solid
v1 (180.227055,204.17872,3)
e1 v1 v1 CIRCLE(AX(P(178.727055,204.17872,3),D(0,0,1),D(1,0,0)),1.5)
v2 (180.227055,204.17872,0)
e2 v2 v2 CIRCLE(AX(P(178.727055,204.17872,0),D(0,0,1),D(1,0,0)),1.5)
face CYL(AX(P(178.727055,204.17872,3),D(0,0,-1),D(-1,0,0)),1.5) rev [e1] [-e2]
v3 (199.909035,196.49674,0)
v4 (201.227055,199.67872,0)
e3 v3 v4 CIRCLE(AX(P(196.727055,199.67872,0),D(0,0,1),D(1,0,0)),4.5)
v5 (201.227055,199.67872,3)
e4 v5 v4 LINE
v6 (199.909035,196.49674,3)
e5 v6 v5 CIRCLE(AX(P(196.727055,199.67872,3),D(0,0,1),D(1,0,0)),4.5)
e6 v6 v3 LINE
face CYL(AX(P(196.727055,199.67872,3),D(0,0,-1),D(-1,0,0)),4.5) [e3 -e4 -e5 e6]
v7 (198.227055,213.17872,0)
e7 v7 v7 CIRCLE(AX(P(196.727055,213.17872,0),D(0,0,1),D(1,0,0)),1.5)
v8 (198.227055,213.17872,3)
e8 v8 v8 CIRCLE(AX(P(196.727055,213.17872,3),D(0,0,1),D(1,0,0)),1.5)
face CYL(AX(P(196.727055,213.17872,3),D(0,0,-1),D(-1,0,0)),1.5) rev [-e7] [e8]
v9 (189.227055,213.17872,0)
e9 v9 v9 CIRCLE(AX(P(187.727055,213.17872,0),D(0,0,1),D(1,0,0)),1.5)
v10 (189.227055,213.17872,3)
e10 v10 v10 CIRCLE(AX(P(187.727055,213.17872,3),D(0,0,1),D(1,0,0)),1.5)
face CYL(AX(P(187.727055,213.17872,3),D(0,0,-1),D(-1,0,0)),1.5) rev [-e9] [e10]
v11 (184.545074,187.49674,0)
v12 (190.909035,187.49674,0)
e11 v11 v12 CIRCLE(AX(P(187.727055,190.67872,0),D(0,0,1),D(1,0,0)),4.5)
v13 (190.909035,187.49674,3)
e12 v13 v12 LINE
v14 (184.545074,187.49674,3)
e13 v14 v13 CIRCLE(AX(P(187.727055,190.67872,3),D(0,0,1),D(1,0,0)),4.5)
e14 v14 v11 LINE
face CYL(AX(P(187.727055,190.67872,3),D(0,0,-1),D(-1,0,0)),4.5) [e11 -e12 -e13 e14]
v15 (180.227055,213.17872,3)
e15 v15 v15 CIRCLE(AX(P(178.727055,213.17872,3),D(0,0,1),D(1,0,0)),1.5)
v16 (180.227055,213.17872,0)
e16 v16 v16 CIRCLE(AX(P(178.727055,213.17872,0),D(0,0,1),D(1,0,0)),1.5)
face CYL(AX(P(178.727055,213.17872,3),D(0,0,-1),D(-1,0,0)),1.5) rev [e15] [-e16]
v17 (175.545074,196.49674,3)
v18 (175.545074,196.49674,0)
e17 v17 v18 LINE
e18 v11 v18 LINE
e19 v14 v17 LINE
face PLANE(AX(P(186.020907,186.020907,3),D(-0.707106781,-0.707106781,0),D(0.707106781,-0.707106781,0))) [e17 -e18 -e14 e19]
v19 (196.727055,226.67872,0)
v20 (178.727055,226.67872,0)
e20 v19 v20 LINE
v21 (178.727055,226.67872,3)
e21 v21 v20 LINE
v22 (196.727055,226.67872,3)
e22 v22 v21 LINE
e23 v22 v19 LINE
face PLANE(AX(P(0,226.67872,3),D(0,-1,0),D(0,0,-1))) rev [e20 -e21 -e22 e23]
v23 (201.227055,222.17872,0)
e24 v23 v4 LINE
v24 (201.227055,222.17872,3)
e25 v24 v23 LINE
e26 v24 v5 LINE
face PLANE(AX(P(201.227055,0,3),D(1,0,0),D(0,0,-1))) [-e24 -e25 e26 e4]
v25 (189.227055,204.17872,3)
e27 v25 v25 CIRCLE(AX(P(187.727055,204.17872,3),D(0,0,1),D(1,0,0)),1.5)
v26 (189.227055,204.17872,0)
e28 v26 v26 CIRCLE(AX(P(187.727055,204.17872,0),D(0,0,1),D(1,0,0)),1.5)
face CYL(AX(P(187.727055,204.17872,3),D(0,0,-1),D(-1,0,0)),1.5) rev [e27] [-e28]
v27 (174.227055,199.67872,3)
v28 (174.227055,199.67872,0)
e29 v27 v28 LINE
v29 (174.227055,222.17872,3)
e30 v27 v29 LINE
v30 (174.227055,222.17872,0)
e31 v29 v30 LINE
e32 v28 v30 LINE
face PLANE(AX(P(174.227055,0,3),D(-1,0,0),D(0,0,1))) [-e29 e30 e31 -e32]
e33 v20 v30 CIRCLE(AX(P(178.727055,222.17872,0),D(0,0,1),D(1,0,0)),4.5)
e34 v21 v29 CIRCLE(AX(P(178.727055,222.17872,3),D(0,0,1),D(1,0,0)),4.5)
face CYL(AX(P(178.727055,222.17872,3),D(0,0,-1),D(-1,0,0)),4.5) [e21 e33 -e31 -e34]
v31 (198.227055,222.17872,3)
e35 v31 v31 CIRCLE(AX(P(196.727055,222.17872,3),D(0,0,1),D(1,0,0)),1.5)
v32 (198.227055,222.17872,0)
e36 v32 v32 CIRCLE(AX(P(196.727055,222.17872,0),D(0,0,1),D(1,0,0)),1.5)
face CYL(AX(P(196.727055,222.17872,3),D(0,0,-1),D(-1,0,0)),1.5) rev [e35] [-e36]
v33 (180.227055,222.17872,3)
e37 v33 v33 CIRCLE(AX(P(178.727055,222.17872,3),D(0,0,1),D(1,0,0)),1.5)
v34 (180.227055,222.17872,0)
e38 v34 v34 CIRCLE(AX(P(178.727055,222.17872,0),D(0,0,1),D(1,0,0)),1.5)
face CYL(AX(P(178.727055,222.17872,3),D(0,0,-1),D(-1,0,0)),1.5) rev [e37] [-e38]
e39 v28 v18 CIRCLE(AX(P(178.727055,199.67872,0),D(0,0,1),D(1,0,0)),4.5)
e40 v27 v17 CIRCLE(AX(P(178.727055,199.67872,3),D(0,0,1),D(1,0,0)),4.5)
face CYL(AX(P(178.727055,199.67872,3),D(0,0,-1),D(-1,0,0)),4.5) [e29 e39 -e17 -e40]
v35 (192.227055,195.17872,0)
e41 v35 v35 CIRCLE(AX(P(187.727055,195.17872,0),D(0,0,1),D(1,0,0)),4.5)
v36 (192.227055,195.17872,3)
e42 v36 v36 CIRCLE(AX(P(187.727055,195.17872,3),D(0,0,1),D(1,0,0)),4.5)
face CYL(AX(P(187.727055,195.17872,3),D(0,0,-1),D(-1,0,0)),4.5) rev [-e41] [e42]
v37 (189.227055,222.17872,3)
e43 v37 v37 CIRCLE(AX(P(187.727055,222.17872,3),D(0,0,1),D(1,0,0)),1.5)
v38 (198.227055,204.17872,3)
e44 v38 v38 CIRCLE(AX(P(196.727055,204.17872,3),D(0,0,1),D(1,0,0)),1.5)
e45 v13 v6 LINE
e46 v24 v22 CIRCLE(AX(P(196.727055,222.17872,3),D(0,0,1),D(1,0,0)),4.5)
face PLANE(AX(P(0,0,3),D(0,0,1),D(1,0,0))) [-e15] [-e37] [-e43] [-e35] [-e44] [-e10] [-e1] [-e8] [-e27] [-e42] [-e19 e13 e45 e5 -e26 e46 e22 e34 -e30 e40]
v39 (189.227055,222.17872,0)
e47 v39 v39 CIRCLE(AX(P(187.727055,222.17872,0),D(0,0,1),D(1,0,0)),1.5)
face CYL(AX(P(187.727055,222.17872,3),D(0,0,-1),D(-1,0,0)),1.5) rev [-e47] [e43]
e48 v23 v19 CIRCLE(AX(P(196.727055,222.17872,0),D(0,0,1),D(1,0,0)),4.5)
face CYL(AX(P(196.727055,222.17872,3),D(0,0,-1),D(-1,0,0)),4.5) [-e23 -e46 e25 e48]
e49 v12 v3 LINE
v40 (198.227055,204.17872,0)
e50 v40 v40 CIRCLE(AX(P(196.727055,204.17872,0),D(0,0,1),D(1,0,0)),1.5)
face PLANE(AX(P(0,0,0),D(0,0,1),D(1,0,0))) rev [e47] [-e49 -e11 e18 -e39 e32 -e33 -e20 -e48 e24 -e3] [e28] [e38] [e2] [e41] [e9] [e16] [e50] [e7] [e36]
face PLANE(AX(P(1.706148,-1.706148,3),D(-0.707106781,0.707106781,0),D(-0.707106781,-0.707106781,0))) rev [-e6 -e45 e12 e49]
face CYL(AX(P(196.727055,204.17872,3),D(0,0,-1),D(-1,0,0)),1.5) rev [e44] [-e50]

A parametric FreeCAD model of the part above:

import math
import FreeCAD as App
import Part
import Sketcher

V = App.Vector
Q = App.Units.Quantity

doc = App.newDocument("Part")
body = doc.addObject("PartDesign::Body", "Body")

# Sketch on XY plane
sketch1 = body.newObject("Sketcher::SketchObject", "Sketch")
sketch1.AttachmentSupport = (doc.getObject("XY_Plane"), [""])
sketch1.MapMode = "FlatFace"
sketch1.addGeometry(Part.LineSegment(V(196.7, 226.7, 0), V(178.7, 226.7, 0)), False)
sketch1.addGeometry(Part.ArcOfCircle(Part.Circle(V(178.7, 222.2, 0), V(0, 0, 1), 4.5), math.radians(90), math.radians(180)), False)
sketch1.addGeometry(Part.LineSegment(V(174.2, 222.2, 0), V(174.2, 199.7, 0)), False)
sketch1.addGeometry(Part.ArcOfCircle(Part.Circle(V(178.7, 199.7, 0), V(0, 0, 1), 4.5), math.radians(180), math.radians(225)), False)
sketch1.addGeometry(Part.LineSegment(V(175.5, 196.5, 0), V(184.5, 187.5, 0)), False)
sketch1.addGeometry(Part.ArcOfCircle(Part.Circle(V(187.7, 190.7, 0), V(0, 0, 1), 4.5), math.radians(-135), math.radians(-45)), False)
sketch1.addGeometry(Part.LineSegment(V(190.9, 187.5, 0), V(199.9, 196.5, 0)), False)
sketch1.addGeometry(Part.ArcOfCircle(Part.Circle(V(196.7, 199.7, 0), V(0, 0, 1), 4.5), math.radians(-45), math.radians(0)), False)
sketch1.addGeometry(Part.LineSegment(V(201.2, 199.7, 0), V(201.2, 222.2, 0)), False)
sketch1.addGeometry(Part.ArcOfCircle(Part.Circle(V(196.7, 222.2, 0), V(0, 0, 1), 4.5), math.radians(0), math.radians(90)), False)
sketch1.addGeometry(Part.Circle(V(178.7, 204.2, 0), V(0, 0, 1), 1.5), False)
sketch1.addGeometry(Part.Circle(V(187.7, 195.2, 0), V(0, 0, 1), 4.5), False)
sketch1.addGeometry(Part.Circle(V(187.7, 204.2, 0), V(0, 0, 1), 1.5), False)
sketch1.addGeometry(Part.Circle(V(196.7, 204.2, 0), V(0, 0, 1), 1.5), False)
sketch1.addGeometry(Part.Circle(V(178.7, 213.2, 0), V(0, 0, 1), 1.5), False)
sketch1.addGeometry(Part.Circle(V(178.7, 222.2, 0), V(0, 0, 1), 1.5), False)
sketch1.addGeometry(Part.Circle(V(187.7, 213.2, 0), V(0, 0, 1), 1.5), False)
sketch1.addGeometry(Part.Circle(V(196.7, 213.2, 0), V(0, 0, 1), 1.5), False)
sketch1.addGeometry(Part.Circle(V(187.7, 222.2, 0), V(0, 0, 1), 1.5), False)
sketch1.addGeometry(Part.Circle(V(196.7, 222.2, 0), V(0, 0, 1), 1.5), False)
sketch1.addConstraint(Sketcher.Constraint("Tangent", 0, 2, 1, 1))
sketch1.addConstraint(Sketcher.Constraint("Tangent", 1, 2, 2, 1))
sketch1.addConstraint(Sketcher.Constraint("Tangent", 2, 2, 3, 1))
sketch1.addConstraint(Sketcher.Constraint("Tangent", 3, 2, 4, 1))
sketch1.addConstraint(Sketcher.Constraint("Tangent", 4, 2, 5, 1))
sketch1.addConstraint(Sketcher.Constraint("Tangent", 5, 2, 6, 1))
sketch1.addConstraint(Sketcher.Constraint("Tangent", 6, 2, 7, 1))
sketch1.addConstraint(Sketcher.Constraint("Tangent", 7, 2, 8, 1))
sketch1.addConstraint(Sketcher.Constraint("Tangent", 8, 2, 9, 1))
sketch1.addConstraint(Sketcher.Constraint("Tangent", 9, 2, 0, 1))
sketch1.addConstraint(Sketcher.Constraint("Horizontal", 0))
sketch1.addConstraint(Sketcher.Constraint("Vertical", 2))
sketch1.addConstraint(Sketcher.Constraint("Vertical", 8))
sketch1.addConstraint(Sketcher.Constraint("Coincident", 15, 3, 1, 3))
sketch1.addConstraint(Sketcher.Constraint("Coincident", 19, 3, 9, 3))
sketch1.addConstraint(Sketcher.Constraint("Equal", 1, 3))
sketch1.addConstraint(Sketcher.Constraint("Equal", 3, 5))
sketch1.addConstraint(Sketcher.Constraint("Equal", 5, 7))
sketch1.addConstraint(Sketcher.Constraint("Equal", 7, 9))
sketch1.addConstraint(Sketcher.Constraint("Equal", 9, 11))
sketch1.addConstraint(Sketcher.Constraint("Equal", 10, 12))
sketch1.addConstraint(Sketcher.Constraint("Equal", 12, 13))
sketch1.addConstraint(Sketcher.Constraint("Equal", 13, 14))
sketch1.addConstraint(Sketcher.Constraint("Equal", 14, 15))
sketch1.addConstraint(Sketcher.Constraint("Equal", 15, 16))
sketch1.addConstraint(Sketcher.Constraint("Equal", 16, 17))
sketch1.addConstraint(Sketcher.Constraint("Equal", 17, 18))
sketch1.addConstraint(Sketcher.Constraint("Equal", 18, 19))
sketch1.addConstraint(Sketcher.Constraint("Perpendicular", 4, 6))
sketch1.addConstraint(Sketcher.Constraint("Horizontal", 3, 3, 7, 3))
sketch1.addConstraint(Sketcher.Constraint("Horizontal", 10, 3, 12, 3))
sketch1.addConstraint(Sketcher.Constraint("Horizontal", 12, 3, 13, 3))
sketch1.addConstraint(Sketcher.Constraint("Horizontal", 14, 3, 16, 3))
sketch1.addConstraint(Sketcher.Constraint("Horizontal", 16, 3, 17, 3))
sketch1.addConstraint(Sketcher.Constraint("Horizontal", 15, 3, 18, 3))
sketch1.addConstraint(Sketcher.Constraint("Horizontal", 4, 2, 5, 2))
sketch1.addConstraint(Sketcher.Constraint("Vertical", 3, 3, 10, 3))
sketch1.addConstraint(Sketcher.Constraint("Vertical", 5, 3, 11, 3))
sketch1.addConstraint(Sketcher.Constraint("Vertical", 11, 3, 12, 3))
sketch1.addConstraint(Sketcher.Constraint("Vertical", 9, 3, 13, 3))
sketch1.addConstraint(Sketcher.Constraint("Vertical", 10, 3, 14, 3))
sketch1.addConstraint(Sketcher.Constraint("Vertical", 12, 3, 16, 3))
sketch1.addConstraint(Sketcher.Constraint("Vertical", 13, 3, 17, 3))
sketch1.addConstraint(Sketcher.Constraint("Vertical", 16, 3, 18, 3))
sketch1.addConstraint(Sketcher.Constraint("Diameter", 10, Q("3 mm")))
sketch1.addConstraint(Sketcher.Constraint("Diameter", 11, Q("9 mm")))
sketch1.addConstraint(Sketcher.Constraint("DistanceX", 0, 2, 0, 1, Q("18 mm")))
sketch1.addConstraint(Sketcher.Constraint("DistanceY", 2, 2, 2, 1, Q("22.5 mm")))
sketch1.addConstraint(Sketcher.Constraint("DistanceY", 10, 3, 1, 3, Q("18 mm")))
sketch1.addConstraint(Sketcher.Constraint("DistanceY", 11, 3, 10, 3, Q("9 mm")))
sketch1.addConstraint(Sketcher.Constraint("DistanceY", 10, 3, 14, 3, Q("9 mm")))
sketch1.addConstraint(Sketcher.Constraint("DistanceY", -1, 1, 1, 3, Q("222.17872 mm")))
sketch1.addConstraint(Sketcher.Constraint("DistanceX", -1, 1, 1, 3, Q("178.727055 mm")))
pad1 = body.newObject("PartDesign::Pad", "Pad")
pad1.Profile = sketch1
pad1.Length = 3

doc.recompute()
